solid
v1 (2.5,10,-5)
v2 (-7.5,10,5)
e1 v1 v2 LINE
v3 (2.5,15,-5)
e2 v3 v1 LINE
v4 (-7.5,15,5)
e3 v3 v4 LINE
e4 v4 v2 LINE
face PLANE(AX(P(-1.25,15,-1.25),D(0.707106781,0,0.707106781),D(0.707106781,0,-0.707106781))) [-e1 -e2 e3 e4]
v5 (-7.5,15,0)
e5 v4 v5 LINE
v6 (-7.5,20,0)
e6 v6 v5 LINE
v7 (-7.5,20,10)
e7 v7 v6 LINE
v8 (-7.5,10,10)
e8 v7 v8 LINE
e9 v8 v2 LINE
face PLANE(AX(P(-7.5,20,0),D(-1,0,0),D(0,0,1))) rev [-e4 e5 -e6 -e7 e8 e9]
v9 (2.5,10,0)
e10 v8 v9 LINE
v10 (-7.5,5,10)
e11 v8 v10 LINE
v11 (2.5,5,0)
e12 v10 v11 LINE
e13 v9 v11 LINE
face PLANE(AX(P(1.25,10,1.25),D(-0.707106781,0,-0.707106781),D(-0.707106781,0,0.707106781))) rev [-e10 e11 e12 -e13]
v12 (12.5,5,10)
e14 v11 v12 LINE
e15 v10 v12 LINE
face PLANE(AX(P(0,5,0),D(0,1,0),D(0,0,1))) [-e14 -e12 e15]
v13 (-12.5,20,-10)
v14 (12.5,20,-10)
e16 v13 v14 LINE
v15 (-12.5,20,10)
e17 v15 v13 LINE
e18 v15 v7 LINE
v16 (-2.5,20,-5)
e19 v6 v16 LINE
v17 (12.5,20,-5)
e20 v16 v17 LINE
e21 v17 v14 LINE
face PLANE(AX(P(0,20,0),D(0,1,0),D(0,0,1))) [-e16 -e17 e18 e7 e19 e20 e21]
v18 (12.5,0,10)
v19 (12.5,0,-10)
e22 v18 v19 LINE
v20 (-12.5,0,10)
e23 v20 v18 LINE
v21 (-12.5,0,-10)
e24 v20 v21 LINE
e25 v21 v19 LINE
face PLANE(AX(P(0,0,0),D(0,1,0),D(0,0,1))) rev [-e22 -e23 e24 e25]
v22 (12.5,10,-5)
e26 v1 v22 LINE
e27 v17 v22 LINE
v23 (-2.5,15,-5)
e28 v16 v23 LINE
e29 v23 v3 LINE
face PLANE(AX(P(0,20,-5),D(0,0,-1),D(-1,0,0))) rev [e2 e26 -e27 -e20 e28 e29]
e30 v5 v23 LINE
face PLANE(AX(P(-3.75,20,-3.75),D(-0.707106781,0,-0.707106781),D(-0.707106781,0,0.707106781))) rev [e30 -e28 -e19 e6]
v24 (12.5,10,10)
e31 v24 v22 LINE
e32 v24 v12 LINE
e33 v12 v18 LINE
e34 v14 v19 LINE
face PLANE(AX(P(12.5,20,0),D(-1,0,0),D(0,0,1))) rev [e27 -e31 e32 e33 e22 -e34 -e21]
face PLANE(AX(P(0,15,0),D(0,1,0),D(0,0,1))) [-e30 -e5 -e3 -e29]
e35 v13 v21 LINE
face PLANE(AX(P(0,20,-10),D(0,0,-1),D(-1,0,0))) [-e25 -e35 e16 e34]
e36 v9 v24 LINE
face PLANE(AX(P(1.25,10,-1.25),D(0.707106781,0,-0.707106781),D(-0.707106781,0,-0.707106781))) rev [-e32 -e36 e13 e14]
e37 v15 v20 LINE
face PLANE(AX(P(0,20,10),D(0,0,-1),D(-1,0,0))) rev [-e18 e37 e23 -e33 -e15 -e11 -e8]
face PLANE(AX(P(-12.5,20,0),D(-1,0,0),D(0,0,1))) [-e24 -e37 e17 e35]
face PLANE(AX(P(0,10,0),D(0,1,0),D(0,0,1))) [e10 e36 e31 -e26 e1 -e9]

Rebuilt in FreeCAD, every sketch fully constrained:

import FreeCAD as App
import Part
import Sketcher

V = App.Vector


def add_polygon(sketch, points):
    """Adds a closed chain of lines whose ends are joined by coincident constraints."""
    first, n = sketch.GeometryCount, len(points)
    for a, b in zip(points, points[1:] + points[:1]):
        sketch.addGeometry(Part.LineSegment(App.Vector(*a, 0), App.Vector(*b, 0)), False)
    for i in range(n):
        sketch.addConstraint(Sketcher.Constraint("Coincident", first + i, 2, first + (i + 1) % n, 1))

doc = App.newDocument("Part")
body = doc.addObject("PartDesign::Body", "Body")

sketch1 = doc.addObject("Sketcher::SketchObject", "Sketch")
body.addObject(sketch1)
sketch1.AttachmentSupport = (doc.XZ_Plane, [""])
sketch1.MapMode = "FlatFace"
add_polygon(sketch1, [(-12, 10), (-8, 10), (-8, 0), (-2, -5), (12, -5), (12, -10), (-12, -10)])
sketch1.addConstraint([
    Sketcher.Constraint("Horizontal", 0),
    Sketcher.Constraint("Vertical", 1),
    Sketcher.Constraint("Horizontal", 3),
    Sketcher.Constraint("Vertical", 4),
    Sketcher.Constraint("Horizontal", 5),
    Sketcher.Constraint("Vertical", 6),
    Sketcher.Constraint("Symmetric", 4, 2, 6, 2, -1, 1),
    Sketcher.Constraint("PointOnObject", 1, 2, -1),
    Sketcher.Constraint("Equal", 0, 4),
    Sketcher.Constraint("DistanceX", 0, 1, 0, 2, 5.0),
    Sketcher.Constraint("DistanceX", 3, 1, 3, 2, 15.0),
    Sketcher.Constraint("DistanceX", 5, 2, 5, 1, 25.0),
    Sketcher.Constraint("DistanceY", 1, 2, 1, 1, 10.0),
])
pad1 = doc.addObject("PartDesign::Pad", "Pad")
body.addObject(pad1)
pad1.Profile = sketch1
pad1.Length = 20
pad1.Reversed = True

sketch2 = doc.addObject("Sketcher::SketchObject", "Sketch001")
body.addObject(sketch2)
sketch2.AttachmentSupport = (doc.XZ_Plane, [""])
sketch2.MapMode = "FlatFace"
add_polygon(sketch2, [(-8, 0), (-8, 5), (2, -5), (-2, -5)])
sketch2.addConstraint([
    Sketcher.Constraint("Vertical", 0),
    Sketcher.Constraint("Horizontal", 2),
    Sketcher.Constraint("PointOnObject", 3, 2, -1),
    Sketcher.Constraint("Parallel", 1, 3),
    Sketcher.Constraint("Equal", 2, 0),
    Sketcher.Constraint("DistanceX", 2, 2, 2, 1, 5.0),
    Sketcher.Constraint("DistanceY", 1, 2, -1, 1, 5.0),
    Sketcher.Constraint("DistanceX", 0, 2, -1, 1, 7.5),
])
pad2 = doc.addObject("PartDesign::Pad", "Pad001")
body.addObject(pad2)
pad2.Profile = sketch2
pad2.Length = 15
pad2.Reversed = True

sketch3 = doc.addObject("Sketcher::SketchObject", "Sketch002")
body.addObject(sketch3)
sketch3.AttachmentSupport = (doc.XZ_Plane, [""])
sketch3.MapMode = "FlatFace"
add_polygon(sketch3, [(-8, 5), (-8, 10), (2, 0), (12, 10), (12, -5), (2, -5)])
sketch3.addConstraint([
    Sketcher.Constraint("Vertical", 0),
    Sketcher.Constraint("Vertical", 3),
    Sketcher.Constraint("Horizontal", 4),
    Sketcher.Constraint("PointOnObject", 1, 2, -1),
    Sketcher.Constraint("Perpendicular", 1, 2),
    Sketcher.Constraint("Perpendicular", 2, 5),
    Sketcher.Constraint("Horizontal", 0, 2, 2, 2),
    Sketcher.Constraint("Vertical", 1, 2, 4, 2),
    Sketcher.Constraint("Equal", 1, 2),
    Sketcher.Constraint("DistanceX", 4, 2, 4, 1, 10.0),
    Sketcher.Constraint("DistanceY", 0, 1, 0, 2, 5.0),
    Sketcher.Constraint("DistanceX", 0, 2, -1, 1, 7.5),
])
pad3 = doc.addObject("PartDesign::Pad", "Pad002")
body.addObject(pad3)
pad3.Profile = sketch3
pad3.Length = 10
pad3.Reversed = True

sketch4 = doc.addObject("Sketcher::SketchObject", "Sketch003")
body.addObject(sketch4)
sketch4.AttachmentSupport = (doc.XZ_Plane, [""])
sketch4.MapMode = "FlatFace"
add_polygon(sketch4, [(2, 0), (-8, 10), (12, 10)])
sketch4.addConstraint([
    Sketcher.Constraint("Horizontal", 1),
    Sketcher.Constraint("PointOnObject", 2, 2, -1),
    Sketcher.Constraint("Perpendicular", 0, 2),
    Sketcher.Constraint("Equal", 0, 2),
    Sketcher.Constraint("DistanceX", 1, 1, 1, 2, 20.0),
    Sketcher.Constraint("DistanceX", 0, 2, -1, 1, 7.5),
])
pad4 = doc.addObject("PartDesign::Pad", "Pad003")
body.addObject(pad4)
pad4.Profile = sketch4
pad4.Length = 5
pad4.Reversed = True

doc.recompute()
